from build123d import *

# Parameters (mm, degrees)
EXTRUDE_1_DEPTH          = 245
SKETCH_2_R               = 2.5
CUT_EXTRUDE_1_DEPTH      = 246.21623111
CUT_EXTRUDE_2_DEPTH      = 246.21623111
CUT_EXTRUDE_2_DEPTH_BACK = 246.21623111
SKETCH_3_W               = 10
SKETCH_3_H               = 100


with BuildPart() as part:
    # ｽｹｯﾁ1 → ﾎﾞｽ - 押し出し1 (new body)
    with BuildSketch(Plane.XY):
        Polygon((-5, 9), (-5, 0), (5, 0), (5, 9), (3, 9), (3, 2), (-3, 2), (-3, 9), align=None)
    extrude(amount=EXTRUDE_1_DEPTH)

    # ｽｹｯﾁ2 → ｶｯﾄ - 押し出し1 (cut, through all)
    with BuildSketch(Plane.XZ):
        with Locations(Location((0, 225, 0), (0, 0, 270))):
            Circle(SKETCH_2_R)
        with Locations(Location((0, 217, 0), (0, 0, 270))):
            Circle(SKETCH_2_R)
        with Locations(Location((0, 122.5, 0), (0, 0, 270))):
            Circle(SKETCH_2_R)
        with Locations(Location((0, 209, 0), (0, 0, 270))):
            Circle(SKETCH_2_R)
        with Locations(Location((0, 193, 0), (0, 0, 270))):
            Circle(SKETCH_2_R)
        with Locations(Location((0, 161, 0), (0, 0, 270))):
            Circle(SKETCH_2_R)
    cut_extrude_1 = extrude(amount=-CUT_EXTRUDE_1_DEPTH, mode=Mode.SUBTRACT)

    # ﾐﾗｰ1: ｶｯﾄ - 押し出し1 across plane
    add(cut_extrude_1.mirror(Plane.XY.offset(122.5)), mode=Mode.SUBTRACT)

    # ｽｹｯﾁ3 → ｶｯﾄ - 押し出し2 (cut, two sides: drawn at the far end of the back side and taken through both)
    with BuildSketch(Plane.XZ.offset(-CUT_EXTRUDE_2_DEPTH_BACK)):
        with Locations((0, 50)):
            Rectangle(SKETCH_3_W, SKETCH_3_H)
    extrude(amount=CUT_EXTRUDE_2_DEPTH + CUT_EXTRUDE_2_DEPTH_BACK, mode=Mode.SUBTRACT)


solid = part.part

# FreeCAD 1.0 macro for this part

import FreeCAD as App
import Part
import Sketcher
Q = App.Units.Quantity

doc = App.newDocument("Part")
body = doc.addObject("PartDesign::Body", "Body")

sketch1 = body.newObject("Sketcher::SketchObject", "Sketch")
sketch1.AttachmentSupport = (doc.getObject("XY_Plane"), [""])
sketch1.MapMode = "FlatFace"
sketch1.addGeometry([
    Part.LineSegment(App.Vector(-5, 9, 0), App.Vector(-5, 0, 0)),
    Part.LineSegment(App.Vector(-5, 0, 0), App.Vector(5, 0, 0)),
    Part.LineSegment(App.Vector(5, 0, 0), App.Vector(5, 9, 0)),
    Part.LineSegment(App.Vector(5, 9, 0), App.Vector(3, 9, 0)),
    Part.LineSegment(App.Vector(3, 9, 0), App.Vector(3, 2, 0)),
    Part.LineSegment(App.Vector(3, 2, 0), App.Vector(-3, 2, 0)),
    Part.LineSegment(App.Vector(-3, 2, 0), App.Vector(-3, 9, 0)),
    Part.LineSegment(App.Vector(-3, 9, 0), App.Vector(-5, 9, 0)),
], False)
sketch1.addConstraint([
    Sketcher.Constraint("Coincident", 0, 2, 1, 1),
    Sketcher.Constraint("Coincident", 1, 2, 2, 1),
    Sketcher.Constraint("Coincident", 2, 2, 3, 1),
    Sketcher.Constraint("Coincident", 3, 2, 4, 1),
    Sketcher.Constraint("Coincident", 4, 2, 5, 1),
    Sketcher.Constraint("Coincident", 5, 2, 6, 1),
    Sketcher.Constraint("Coincident", 6, 2, 7, 1),
    Sketcher.Constraint("Coincident", 7, 2, 0, 1),
    Sketcher.Constraint("Vertical", 0),
    Sketcher.Constraint("Horizontal", 1),
    Sketcher.Constraint("Vertical", 2),
    Sketcher.Constraint("Horizontal", 3),
    Sketcher.Constraint("Vertical", 4),
    Sketcher.Constraint("Horizontal", 5),
    Sketcher.Constraint("Vertical", 6),
    Sketcher.Constraint("Horizontal", 7),
    Sketcher.Constraint("Symmetric", 0, 2, 1, 2, -1, 1),
    Sketcher.Constraint("Symmetric", 3, 2, 6, 2, -2),
    Sketcher.Constraint("DistanceX", 1, 1, 1, 2, Q("10 mm")),
    Sketcher.Constraint("DistanceX", 3, 2, 3, 1, Q("2 mm")),
    Sketcher.Constraint("DistanceY", 0, 2, 0, 1, Q("9 mm")),
    Sketcher.Constraint("DistanceY", 4, 2, 4, 1, Q("7 mm")),
])
pad1 = body.newObject("PartDesign::Pad", "Pad")
pad1.Profile = sketch1
pad1.Length = 245

sketch2 = body.newObject("Sketcher::SketchObject", "Sketch001")
sketch2.AttachmentSupport = (doc.getObject("XZ_Plane"), [""])
sketch2.MapMode = "FlatFace"
sketch2.addGeometry([
    Part.Circle(App.Vector(0, 225, 0), App.Vector(0, 0, 1), 2.5),
    Part.Circle(App.Vector(0, 217, 0), App.Vector(0, 0, 1), 2.5),
    Part.Circle(App.Vector(0, 122.5, 0), App.Vector(0, 0, 1), 2.5),
    Part.Circle(App.Vector(0, 209, 0), App.Vector(0, 0, 1), 2.5),
    Part.Circle(App.Vector(0, 193, 0), App.Vector(0, 0, 1), 2.5),
    Part.Circle(App.Vector(0, 161, 0), App.Vector(0, 0, 1), 2.5),
], False)
sketch2.addConstraint([
    Sketcher.Constraint("Equal", 0, 1),
    Sketcher.Constraint("Equal", 1, 2),
    Sketcher.Constraint("Equal", 2, 3),
    Sketcher.Constraint("Equal", 3, 4),
    Sketcher.Constraint("Equal", 4, 5),
    Sketcher.Constraint("PointOnObject", 0, 3, -2),
    Sketcher.Constraint("PointOnObject", 1, 3, -2),
    Sketcher.Constraint("PointOnObject", 2, 3, -2),
    Sketcher.Constraint("PointOnObject", 3, 3, -2),
    Sketcher.Constraint("PointOnObject", 4, 3, -2),
    Sketcher.Constraint("PointOnObject", 5, 3, -2),
    Sketcher.Constraint("Diameter", 0, Q("5 mm")),
    Sketcher.Constraint("DistanceY", -1, 1, 0, 3, Q("225 mm")),
    Sketcher.Constraint("DistanceY", -1, 1, 1, 3, Q("217 mm")),
    Sketcher.Constraint("DistanceY", -1, 1, 3, 3, Q("209 mm")),
    Sketcher.Constraint("DistanceY", -1, 1, 4, 3, Q("193 mm")),
    Sketcher.Constraint("DistanceY", -1, 1, 5, 3, Q("161 mm")),
    Sketcher.Constraint("DistanceY", -1, 1, 2, 3, Q("122.5 mm")),
])
pocket1 = body.newObject("PartDesign::Pocket", "Pocket")
pocket1.Profile = sketch2
pocket1.Type = "ThroughAll"
doc.recompute()

datumplane = body.newObject("PartDesign::Plane", "DatumPlane")
datumplane.AttachmentSupport = (doc.getObject("XY_Plane"), [""])
datumplane.MapMode = "FlatFace"
datumplane.AttachmentOffset = App.Placement(App.Vector(0, 0, 122.5), App.Rotation())
mirrored = body.newObject("PartDesign::Mirrored", "Mirrored")
mirrored.Originals = [pocket1]
mirrored.MirrorPlane = (datumplane, [""])
body.Tip = mirrored

sketch3 = body.newObject("Sketcher::SketchObject", "Sketch002")
sketch3.AttachmentSupport = (doc.getObject("XZ_Plane"), [""])
sketch3.MapMode = "FlatFace"
sketch3.addGeometry([
    Part.LineSegment(App.Vector(-5, 100, 0), App.Vector(-5, 0, 0)),
    Part.LineSegment(App.Vector(-5, 0, 0), App.Vector(5, 0, 0)),
    Part.LineSegment(App.Vector(5, 0, 0), App.Vector(5, 100, 0)),
    Part.LineSegment(App.Vector(5, 100, 0), App.Vector(-5, 100, 0)),
], False)
sketch3.addConstraint([
    Sketcher.Constraint("Coincident", 0, 2, 1, 1),
    Sketcher.Constraint("Coincident", 1, 2, 2, 1),
    Sketcher.Constraint("Coincident", 2, 2, 3, 1),
    Sketcher.Constraint("Coincident", 3, 2, 0, 1),
    Sketcher.Constraint("Vertical", 0),
    Sketcher.Constraint("Horizontal", 1),
    Sketcher.Constraint("Vertical", 2),
    Sketcher.Constraint("Horizontal", 3),
    Sketcher.Constraint("Symmetric", 0, 2, 1, 2, -1, 1),
    Sketcher.Constraint("DistanceX", 1, 1, 1, 2, Q("10 mm")),
    Sketcher.Constraint("DistanceY", 0, 2, 0, 1, Q("100 mm")),
])
pocket2 = body.newObject("PartDesign::Pocket", "Pocket001")
pocket2.Profile = sketch3
pocket2.Type = "ThroughAll"
pocket2.Midplane = True

doc.recompute()
